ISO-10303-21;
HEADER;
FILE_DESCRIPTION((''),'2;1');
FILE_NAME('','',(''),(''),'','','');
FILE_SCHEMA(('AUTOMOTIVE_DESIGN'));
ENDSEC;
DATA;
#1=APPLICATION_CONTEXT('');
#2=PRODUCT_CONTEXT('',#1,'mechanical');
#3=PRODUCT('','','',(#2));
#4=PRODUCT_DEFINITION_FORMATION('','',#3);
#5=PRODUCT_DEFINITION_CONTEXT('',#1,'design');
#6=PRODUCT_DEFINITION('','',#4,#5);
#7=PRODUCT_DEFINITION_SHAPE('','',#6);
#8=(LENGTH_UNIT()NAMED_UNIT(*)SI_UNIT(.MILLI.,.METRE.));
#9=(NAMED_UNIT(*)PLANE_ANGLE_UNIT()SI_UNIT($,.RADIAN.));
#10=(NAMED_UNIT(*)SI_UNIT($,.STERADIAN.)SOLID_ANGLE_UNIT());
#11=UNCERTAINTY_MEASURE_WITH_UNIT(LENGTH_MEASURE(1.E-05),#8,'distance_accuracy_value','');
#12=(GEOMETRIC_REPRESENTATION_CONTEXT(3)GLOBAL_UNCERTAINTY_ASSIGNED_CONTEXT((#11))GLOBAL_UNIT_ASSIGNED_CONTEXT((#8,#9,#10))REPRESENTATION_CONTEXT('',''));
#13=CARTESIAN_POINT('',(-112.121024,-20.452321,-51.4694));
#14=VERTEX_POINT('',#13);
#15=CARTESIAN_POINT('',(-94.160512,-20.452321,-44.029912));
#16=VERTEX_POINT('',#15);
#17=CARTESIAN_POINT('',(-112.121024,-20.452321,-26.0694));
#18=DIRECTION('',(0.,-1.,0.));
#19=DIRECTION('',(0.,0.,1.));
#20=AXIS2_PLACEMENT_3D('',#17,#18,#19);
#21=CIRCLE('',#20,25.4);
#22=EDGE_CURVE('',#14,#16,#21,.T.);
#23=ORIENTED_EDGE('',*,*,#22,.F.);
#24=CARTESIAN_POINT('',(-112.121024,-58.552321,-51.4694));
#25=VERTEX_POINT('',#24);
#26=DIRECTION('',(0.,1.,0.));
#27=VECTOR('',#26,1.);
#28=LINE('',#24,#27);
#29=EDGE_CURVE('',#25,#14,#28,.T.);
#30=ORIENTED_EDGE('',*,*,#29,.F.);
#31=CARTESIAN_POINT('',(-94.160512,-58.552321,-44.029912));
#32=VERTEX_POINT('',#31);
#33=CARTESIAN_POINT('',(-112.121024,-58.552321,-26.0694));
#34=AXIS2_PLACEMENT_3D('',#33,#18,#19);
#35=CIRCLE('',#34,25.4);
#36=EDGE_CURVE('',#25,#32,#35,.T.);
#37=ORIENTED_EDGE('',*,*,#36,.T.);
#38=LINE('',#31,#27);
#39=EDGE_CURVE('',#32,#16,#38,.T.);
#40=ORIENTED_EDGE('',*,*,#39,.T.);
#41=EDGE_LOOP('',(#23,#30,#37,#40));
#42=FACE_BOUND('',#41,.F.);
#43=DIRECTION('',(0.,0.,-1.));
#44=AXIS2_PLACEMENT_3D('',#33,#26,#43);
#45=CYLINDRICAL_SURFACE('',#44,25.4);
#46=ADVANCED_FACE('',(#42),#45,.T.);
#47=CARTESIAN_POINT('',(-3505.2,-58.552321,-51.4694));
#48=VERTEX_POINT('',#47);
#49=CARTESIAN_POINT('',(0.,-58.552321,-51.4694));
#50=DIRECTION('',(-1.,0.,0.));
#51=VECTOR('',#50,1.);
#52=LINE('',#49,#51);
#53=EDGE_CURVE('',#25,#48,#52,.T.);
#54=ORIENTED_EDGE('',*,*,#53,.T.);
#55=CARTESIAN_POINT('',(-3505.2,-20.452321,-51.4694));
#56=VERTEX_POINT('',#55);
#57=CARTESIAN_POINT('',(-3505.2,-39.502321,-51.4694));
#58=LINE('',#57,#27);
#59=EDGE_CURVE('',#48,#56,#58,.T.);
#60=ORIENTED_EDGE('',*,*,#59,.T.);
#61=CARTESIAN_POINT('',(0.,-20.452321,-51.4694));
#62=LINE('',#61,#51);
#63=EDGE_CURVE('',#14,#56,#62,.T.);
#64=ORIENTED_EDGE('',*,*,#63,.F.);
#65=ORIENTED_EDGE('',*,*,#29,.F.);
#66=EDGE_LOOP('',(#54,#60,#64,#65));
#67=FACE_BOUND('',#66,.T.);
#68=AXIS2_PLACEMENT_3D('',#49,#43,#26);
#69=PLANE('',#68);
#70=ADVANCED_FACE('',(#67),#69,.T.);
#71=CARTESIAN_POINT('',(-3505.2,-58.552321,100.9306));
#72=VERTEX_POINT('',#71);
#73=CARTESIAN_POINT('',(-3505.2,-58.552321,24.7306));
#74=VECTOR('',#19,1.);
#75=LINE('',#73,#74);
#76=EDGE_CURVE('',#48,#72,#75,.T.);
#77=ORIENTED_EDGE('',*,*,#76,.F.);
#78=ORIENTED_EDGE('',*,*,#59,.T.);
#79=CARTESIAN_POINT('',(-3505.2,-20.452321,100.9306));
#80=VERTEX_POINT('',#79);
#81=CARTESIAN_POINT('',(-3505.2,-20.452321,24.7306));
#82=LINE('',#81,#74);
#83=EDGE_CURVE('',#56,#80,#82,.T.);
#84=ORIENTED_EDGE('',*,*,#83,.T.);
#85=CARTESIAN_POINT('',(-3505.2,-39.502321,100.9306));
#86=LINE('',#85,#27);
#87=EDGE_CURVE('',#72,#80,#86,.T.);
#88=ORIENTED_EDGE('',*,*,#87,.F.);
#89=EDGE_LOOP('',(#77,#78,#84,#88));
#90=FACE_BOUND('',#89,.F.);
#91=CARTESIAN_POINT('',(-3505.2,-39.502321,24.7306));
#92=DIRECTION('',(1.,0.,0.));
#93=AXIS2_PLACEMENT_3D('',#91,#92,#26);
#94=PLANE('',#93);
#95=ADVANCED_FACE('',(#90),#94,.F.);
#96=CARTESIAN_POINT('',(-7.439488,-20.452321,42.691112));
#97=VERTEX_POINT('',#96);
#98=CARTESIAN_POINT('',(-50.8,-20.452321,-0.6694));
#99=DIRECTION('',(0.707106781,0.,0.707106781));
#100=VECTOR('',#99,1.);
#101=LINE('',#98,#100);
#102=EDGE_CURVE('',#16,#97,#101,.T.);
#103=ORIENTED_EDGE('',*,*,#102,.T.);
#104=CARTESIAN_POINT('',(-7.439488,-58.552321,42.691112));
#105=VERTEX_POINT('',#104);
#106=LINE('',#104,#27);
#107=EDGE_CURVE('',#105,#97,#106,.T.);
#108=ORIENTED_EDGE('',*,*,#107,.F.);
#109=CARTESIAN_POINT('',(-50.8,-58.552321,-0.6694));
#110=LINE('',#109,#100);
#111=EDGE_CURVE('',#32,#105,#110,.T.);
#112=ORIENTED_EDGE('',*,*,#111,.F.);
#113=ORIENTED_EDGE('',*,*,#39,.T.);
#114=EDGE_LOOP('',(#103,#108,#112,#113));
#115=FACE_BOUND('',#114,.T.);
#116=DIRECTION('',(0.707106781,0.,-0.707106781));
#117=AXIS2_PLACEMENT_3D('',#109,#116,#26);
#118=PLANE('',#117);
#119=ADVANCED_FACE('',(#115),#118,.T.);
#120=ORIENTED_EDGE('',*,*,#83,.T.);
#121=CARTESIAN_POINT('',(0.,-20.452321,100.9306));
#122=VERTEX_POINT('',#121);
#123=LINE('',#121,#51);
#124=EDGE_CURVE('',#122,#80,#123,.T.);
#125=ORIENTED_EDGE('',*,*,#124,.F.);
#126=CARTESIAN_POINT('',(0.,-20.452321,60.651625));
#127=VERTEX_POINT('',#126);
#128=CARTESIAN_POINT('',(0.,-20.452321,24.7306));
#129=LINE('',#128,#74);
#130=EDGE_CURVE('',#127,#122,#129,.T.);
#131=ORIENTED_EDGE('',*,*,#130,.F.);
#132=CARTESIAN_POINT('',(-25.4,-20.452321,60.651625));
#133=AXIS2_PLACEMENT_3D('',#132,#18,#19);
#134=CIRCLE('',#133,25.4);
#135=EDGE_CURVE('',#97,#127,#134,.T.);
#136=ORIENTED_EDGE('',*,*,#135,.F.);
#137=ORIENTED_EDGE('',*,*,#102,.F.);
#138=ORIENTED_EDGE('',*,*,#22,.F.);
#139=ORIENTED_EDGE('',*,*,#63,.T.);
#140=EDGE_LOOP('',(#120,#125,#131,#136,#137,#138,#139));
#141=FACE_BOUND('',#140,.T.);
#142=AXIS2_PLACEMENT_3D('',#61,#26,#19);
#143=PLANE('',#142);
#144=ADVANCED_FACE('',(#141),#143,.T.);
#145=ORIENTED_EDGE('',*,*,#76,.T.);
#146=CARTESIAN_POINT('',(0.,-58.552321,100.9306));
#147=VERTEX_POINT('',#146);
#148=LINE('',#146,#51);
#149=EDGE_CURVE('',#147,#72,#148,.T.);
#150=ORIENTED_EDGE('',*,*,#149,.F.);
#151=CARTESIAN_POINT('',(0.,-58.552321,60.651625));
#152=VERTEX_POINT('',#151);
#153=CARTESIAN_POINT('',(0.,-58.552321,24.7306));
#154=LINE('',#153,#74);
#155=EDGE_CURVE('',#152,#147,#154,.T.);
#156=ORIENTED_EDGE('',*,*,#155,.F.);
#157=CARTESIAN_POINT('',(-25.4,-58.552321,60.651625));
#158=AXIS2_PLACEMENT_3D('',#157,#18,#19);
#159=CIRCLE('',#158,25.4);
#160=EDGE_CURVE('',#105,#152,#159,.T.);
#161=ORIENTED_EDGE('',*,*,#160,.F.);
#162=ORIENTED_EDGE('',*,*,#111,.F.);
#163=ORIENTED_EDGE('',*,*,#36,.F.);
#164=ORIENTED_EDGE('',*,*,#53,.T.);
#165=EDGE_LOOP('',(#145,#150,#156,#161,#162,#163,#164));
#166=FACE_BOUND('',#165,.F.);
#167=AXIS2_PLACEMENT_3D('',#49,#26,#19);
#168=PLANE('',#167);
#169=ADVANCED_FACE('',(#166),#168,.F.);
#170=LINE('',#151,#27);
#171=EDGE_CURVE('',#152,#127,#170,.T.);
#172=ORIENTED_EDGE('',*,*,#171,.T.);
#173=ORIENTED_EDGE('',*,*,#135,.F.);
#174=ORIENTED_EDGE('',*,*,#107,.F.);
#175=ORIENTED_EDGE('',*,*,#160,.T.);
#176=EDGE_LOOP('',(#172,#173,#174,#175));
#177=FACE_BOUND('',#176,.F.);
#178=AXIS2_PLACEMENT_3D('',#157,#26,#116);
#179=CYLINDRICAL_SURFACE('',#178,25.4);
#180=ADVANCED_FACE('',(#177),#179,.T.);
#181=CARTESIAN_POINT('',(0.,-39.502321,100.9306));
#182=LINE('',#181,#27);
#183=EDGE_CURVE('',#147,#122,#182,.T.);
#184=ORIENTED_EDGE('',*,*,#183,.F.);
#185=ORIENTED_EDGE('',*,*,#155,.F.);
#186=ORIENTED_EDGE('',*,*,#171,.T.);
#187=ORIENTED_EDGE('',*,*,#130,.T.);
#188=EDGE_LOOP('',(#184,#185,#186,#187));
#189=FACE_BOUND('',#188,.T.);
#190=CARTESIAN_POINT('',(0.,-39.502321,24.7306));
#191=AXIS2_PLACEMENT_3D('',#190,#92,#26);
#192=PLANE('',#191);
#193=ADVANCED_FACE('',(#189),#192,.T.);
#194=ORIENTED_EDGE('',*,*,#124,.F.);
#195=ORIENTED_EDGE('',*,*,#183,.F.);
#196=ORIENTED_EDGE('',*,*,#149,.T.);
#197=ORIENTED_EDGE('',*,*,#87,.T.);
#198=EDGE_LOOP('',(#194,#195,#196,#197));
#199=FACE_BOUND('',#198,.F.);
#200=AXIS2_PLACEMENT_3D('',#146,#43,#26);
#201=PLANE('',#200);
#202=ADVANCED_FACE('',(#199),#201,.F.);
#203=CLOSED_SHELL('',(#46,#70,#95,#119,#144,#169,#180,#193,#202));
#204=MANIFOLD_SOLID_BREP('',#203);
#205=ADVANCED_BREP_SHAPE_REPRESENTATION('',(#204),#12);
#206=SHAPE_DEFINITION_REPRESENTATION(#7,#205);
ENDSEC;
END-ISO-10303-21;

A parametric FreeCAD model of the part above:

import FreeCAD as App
import Part
import Sketcher

V = App.Vector
Q = App.Units.Quantity


def edges_at(feature, points):
    """Names of the edges that pass closest to the given points."""
    edges = feature.Shape.Edges
    near = lambda p: min(range(len(edges)), key=lambda i: edges[i].distToShape(Part.Vertex(*p))[0])
    return sorted({f"Edge{near(p) + 1}" for p in points})


def add_polygon(sketch, points):
    """Adds a closed chain of lines whose ends are joined by coincident constraints."""
    first, n = sketch.GeometryCount, len(points)
    for a, b in zip(points, points[1:] + points[:1]):
        sketch.addGeometry(Part.LineSegment(App.Vector(*a, 0), App.Vector(*b, 0)), False)
    for i in range(n):
        sketch.addConstraint(Sketcher.Constraint("Coincident", first + i, 2, first + (i + 1) % n, 1))

doc = App.newDocument("Part")
params = doc.addObject("Spreadsheet::Sheet", "Params")
for row, (alias, value) in enumerate([
    ("sketch1_height", "6 in"),
    ("sketch1_width", "1.5 in"),
    ("pad1_length", "138 in"),
    ("chamfer_size", "4 in"),
    ("fillet_radius", "1 in"),
], start=1):
    params.set(f"A{row}", alias)
    params.set(f"B{row}", "=" + value)
    params.setAlias(f"B{row}", alias)

body = doc.addObject("PartDesign::Body", "Body")

# Sketch on YZ plane
sketch1 = body.newObject("Sketcher::SketchObject", "Sketch")
sketch1.AttachmentSupport = (doc.getObject("YZ_Plane"), [""])
sketch1.MapMode = "FlatFace"
add_polygon(sketch1, [(-59, 101), (-59, -51), (-20, -51), (-20, 101)])  # lines 0-3
sketch1.addConstraint(Sketcher.Constraint("Vertical", 0))
sketch1.addConstraint(Sketcher.Constraint("Horizontal", 1))
sketch1.addConstraint(Sketcher.Constraint("Vertical", 2))
sketch1.addConstraint(Sketcher.Constraint("Horizontal", 3))
sketch1.addConstraint(Sketcher.Constraint("DistanceY", 0, 2, 0, 1, Q("6 in")))
sketch1.addConstraint(Sketcher.Constraint("DistanceX", 1, 1, 1, 2, Q("1.5 in")))
sketch1.addConstraint(Sketcher.Constraint("DistanceY", 0, 2, -1, 1, 51.4694))
sketch1.addConstraint(Sketcher.Constraint("DistanceX", 0, 2, -1, 1, 58.552321))
sketch1.setExpression("Constraints[8]", "Params.sketch1_height")
sketch1.setExpression("Constraints[9]", "Params.sketch1_width")
pad1 = body.newObject("PartDesign::Pad", "Pad")
pad1.Profile = sketch1
pad1.setExpression("Length", "Params.pad1_length")
pad1.Reversed = True
doc.recompute()

chamfer = body.newObject("PartDesign::Chamfer", "Chamfer")
chamfer.Base = (pad1, edges_at(pad1, [(0, -39.502, -51.469)]))
chamfer.setExpression("Size", "Params.chamfer_size")
doc.recompute()

fillet = body.newObject("PartDesign::Fillet", "Fillet")
fillet.Base = (chamfer, edges_at(chamfer, [(0, -39.502, 50.131), (-101.6, -39.502, -51.469)]))
fillet.setExpression("Radius", "Params.fillet_radius")

doc.recompute()
